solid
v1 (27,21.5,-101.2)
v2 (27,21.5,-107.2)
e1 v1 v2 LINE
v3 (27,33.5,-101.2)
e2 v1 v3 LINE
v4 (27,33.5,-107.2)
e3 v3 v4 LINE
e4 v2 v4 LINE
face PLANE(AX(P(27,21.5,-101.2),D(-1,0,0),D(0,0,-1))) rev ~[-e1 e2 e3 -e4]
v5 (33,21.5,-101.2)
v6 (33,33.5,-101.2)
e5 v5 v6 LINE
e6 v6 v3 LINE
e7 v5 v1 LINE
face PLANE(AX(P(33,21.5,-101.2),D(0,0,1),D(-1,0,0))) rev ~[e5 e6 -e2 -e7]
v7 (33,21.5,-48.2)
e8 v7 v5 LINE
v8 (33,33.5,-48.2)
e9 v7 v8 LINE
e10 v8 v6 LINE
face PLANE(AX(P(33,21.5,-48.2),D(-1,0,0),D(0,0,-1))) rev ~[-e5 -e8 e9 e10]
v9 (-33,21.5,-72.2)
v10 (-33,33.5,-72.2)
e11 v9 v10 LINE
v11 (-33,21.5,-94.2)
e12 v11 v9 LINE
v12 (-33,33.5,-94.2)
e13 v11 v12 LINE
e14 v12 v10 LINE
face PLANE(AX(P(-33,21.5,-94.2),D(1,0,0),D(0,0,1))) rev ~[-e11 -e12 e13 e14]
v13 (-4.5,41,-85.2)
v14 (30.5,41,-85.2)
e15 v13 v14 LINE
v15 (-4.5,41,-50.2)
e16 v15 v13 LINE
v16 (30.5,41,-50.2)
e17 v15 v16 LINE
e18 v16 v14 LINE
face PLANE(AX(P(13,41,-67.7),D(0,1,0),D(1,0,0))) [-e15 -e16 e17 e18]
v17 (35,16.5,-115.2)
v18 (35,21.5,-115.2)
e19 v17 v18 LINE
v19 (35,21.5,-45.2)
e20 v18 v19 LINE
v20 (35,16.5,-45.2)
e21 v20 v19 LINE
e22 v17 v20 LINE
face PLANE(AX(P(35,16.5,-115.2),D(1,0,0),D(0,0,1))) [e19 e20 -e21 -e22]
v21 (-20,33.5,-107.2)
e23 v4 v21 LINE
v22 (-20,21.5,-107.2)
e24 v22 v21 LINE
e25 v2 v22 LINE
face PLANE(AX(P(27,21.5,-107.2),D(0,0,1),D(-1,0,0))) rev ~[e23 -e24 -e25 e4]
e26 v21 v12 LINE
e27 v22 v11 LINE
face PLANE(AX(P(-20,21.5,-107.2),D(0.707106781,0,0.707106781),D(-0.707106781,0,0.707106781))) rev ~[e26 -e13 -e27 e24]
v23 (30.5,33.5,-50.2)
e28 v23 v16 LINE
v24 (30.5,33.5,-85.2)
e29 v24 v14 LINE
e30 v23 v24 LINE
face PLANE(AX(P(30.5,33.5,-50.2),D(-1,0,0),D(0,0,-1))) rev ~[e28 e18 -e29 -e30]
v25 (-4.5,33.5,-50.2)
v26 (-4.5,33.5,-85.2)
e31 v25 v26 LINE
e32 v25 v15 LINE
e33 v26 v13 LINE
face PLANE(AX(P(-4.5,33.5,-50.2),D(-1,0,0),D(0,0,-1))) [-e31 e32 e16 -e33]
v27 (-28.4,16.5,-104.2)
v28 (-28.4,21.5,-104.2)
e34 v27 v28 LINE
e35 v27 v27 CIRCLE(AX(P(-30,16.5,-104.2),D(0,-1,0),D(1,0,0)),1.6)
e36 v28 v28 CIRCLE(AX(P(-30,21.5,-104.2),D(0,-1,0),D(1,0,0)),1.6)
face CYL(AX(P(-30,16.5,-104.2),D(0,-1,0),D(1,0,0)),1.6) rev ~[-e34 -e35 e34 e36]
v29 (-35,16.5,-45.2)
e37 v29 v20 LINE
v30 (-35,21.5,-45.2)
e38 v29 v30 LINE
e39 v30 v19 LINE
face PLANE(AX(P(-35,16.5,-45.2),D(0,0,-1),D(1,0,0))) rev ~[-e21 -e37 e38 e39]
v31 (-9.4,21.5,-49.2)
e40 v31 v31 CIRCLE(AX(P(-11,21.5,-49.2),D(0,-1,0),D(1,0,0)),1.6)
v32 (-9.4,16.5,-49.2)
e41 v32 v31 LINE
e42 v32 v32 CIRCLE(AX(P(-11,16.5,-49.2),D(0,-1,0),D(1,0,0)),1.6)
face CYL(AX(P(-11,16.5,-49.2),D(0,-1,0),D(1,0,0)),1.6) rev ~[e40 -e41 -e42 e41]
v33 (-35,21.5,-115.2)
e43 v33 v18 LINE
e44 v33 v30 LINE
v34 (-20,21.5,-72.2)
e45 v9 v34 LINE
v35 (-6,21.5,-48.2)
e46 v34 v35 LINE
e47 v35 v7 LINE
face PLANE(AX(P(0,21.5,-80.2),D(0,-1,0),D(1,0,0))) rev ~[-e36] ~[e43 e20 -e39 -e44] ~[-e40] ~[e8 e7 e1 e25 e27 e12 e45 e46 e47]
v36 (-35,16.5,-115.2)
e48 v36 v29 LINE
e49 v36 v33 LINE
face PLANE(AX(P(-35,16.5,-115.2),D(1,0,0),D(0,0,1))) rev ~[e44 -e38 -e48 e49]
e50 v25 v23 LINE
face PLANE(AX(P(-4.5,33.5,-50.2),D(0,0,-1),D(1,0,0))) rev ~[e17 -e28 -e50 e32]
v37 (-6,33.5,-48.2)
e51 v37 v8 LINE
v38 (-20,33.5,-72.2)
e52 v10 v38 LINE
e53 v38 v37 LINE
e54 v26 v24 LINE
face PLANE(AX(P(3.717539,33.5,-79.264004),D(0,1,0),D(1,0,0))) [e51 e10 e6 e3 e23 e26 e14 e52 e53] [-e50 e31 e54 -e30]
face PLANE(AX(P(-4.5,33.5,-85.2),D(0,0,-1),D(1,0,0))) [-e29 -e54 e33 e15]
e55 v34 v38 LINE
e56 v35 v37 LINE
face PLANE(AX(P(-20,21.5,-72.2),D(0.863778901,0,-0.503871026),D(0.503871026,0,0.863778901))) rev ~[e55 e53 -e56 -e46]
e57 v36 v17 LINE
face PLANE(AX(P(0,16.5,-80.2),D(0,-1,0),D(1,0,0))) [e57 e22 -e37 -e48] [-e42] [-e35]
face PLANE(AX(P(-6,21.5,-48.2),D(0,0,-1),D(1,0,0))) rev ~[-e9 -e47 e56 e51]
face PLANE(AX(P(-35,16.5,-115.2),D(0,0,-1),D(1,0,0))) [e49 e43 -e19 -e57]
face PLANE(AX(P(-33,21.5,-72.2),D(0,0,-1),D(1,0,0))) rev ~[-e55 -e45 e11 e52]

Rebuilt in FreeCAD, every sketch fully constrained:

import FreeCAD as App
import Part
import Sketcher

V = App.Vector
Q = App.Units.Quantity


def add_polygon(sketch, points):
    """Adds a closed chain of lines whose ends are joined by coincident constraints."""
    first, n = sketch.GeometryCount, len(points)
    for a, b in zip(points, points[1:] + points[:1]):
        sketch.addGeometry(Part.LineSegment(App.Vector(*a, 0), App.Vector(*b, 0)), False)
    for i in range(n):
        sketch.addConstraint(Sketcher.Constraint("Coincident", first + i, 2, first + (i + 1) % n, 1))

doc = App.newDocument("Part")
body = doc.addObject("PartDesign::Body", "Body")

# Sketch on XZ plane
sketch1 = body.newObject("Sketcher::SketchObject", "Sketch")
sketch1.AttachmentSupport = (doc.getObject("XZ_Plane"), [""])
sketch1.MapMode = "FlatFace"
add_polygon(sketch1, [(-35, 35), (-35, -35), (35, -35), (35, 35)])  # lines 0-3
sketch1.addGeometry(Part.Circle(V(-30, -24, 0), V(0, 0, 1), 1.6), False)  # 4
sketch1.addGeometry(Part.Circle(V(-11, 31, 0), V(0, 0, 1), 1.6), False)  # 5
sketch1.addConstraint([
    Sketcher.Constraint("Vertical", 0),
    Sketcher.Constraint("Horizontal", 1),
    Sketcher.Constraint("Vertical", 2),
    Sketcher.Constraint("Horizontal", 3),
    Sketcher.Constraint("Equal", 4, 5),
    Sketcher.Constraint("Symmetric", 0, 2, 2, 2, -1, 1),
    Sketcher.Constraint("Equal", 3, 0),
    Sketcher.Constraint("Diameter", 4, Q("3.2 mm")),
    Sketcher.Constraint("DistanceX", 1, 1, 1, 2, Q("70 mm")),
    Sketcher.Constraint("DistanceX", 4, 3, -1, 1, Q("30 mm")),
    Sketcher.Constraint("DistanceY", 4, 3, -1, 1, Q("24 mm")),
    Sketcher.Constraint("DistanceX", 5, 3, -1, 1, Q("11 mm")),
    Sketcher.Constraint("DistanceY", -1, 1, 5, 3, Q("31 mm")),
])
pad1 = body.newObject("PartDesign::Pad", "Pad")
pad1.Profile = sketch1
pad1.Length = 5
pad1.Reversed = True

# Sketch on XZ plane
sketch2 = body.newObject("Sketcher::SketchObject", "Sketch001")
sketch2.AttachmentSupport = (doc.getObject("XZ_Plane"), [""])
sketch2.MapMode = "FlatFace"
sketch2.AttachmentOffset = App.Placement(V(0, 0, -5), App.Rotation())
add_polygon(sketch2, [(-20, -27), (-33, -14), (-33, 8), (-20, 8), (-6, 32), (33, 32), (33, -21), (27, -21), (27, -27)])  # lines 0-8
sketch2.addConstraint([
    Sketcher.Constraint("Vertical", 1),
    Sketcher.Constraint("Horizontal", 2),
    Sketcher.Constraint("Horizontal", 4),
    Sketcher.Constraint("Vertical", 5),
    Sketcher.Constraint("Horizontal", 6),
    Sketcher.Constraint("Vertical", 7),
    Sketcher.Constraint("Horizontal", 8),
    Sketcher.Constraint("Vertical", 2, 2, 8, 2),
    Sketcher.Constraint("Equal", 6, 7),
    Sketcher.Constraint("DistanceX", 2, 1, 2, 2, Q("13 mm")),
    Sketcher.Constraint("DistanceX", 4, 1, 4, 2, Q("39 mm")),
    Sketcher.Constraint("DistanceX", 6, 2, 6, 1, Q("6 mm")),
    Sketcher.Constraint("DistanceX", 8, 2, 8, 1, Q("47 mm")),
    Sketcher.Constraint("DistanceY", 1, 1, 1, 2, Q("22 mm")),
    Sketcher.Constraint("DistanceY", 5, 2, 5, 1, Q("53 mm")),
    Sketcher.Constraint("Angle", 0, Q("135 deg")),
    Sketcher.Constraint("DistanceX", 0, 2, -1, 1, Q("33 mm")),
    Sketcher.Constraint("DistanceY", 0, 2, -1, 1, Q("14 mm")),
])
pad2 = body.newObject("PartDesign::Pad", "Pad001")
pad2.Profile = sketch2
pad2.Length = 12
pad2.Reversed = True

# Sketch on XZ plane
sketch3 = body.newObject("Sketcher::SketchObject", "Sketch002")
sketch3.AttachmentSupport = (doc.getObject("XZ_Plane"), [""])
sketch3.MapMode = "FlatFace"
sketch3.AttachmentOffset = App.Placement(V(0, 0, -17), App.Rotation())
add_polygon(sketch3, [(-4.5, -5), (-4.5, 30), (30.5, 30), (30.5, -5)])  # lines 0-3
sketch3.addConstraint([
    Sketcher.Constraint("Vertical", 0),
    Sketcher.Constraint("Horizontal", 1),
    Sketcher.Constraint("Vertical", 2),
    Sketcher.Constraint("Horizontal", 3),
    Sketcher.Constraint("Equal", 3, 0),
    Sketcher.Constraint("DistanceX", 1, 1, 1, 2, Q("35 mm")),
    Sketcher.Constraint("DistanceY", -1, 1, 0, 2, Q("30 mm")),
    Sketcher.Constraint("DistanceX", 0, 2, -1, 1, Q("4.5 mm")),
])
pad3 = body.newObject("PartDesign::Pad", "Pad002")
pad3.Profile = sketch3
pad3.Length = 7.5
pad3.Reversed = True
body2 = doc.addObject("PartDesign::Body", "Body001")
doc.recompute()

body.Placement = App.Placement(V(0, 16.5, -80.2), App.Rotation(V(0, 0, 1), 0))
boolean = body2.newObject("PartDesign::Boolean", "Boolean")
boolean.Type = "Fuse"
boolean.addObjects([body])

doc.recompute()
